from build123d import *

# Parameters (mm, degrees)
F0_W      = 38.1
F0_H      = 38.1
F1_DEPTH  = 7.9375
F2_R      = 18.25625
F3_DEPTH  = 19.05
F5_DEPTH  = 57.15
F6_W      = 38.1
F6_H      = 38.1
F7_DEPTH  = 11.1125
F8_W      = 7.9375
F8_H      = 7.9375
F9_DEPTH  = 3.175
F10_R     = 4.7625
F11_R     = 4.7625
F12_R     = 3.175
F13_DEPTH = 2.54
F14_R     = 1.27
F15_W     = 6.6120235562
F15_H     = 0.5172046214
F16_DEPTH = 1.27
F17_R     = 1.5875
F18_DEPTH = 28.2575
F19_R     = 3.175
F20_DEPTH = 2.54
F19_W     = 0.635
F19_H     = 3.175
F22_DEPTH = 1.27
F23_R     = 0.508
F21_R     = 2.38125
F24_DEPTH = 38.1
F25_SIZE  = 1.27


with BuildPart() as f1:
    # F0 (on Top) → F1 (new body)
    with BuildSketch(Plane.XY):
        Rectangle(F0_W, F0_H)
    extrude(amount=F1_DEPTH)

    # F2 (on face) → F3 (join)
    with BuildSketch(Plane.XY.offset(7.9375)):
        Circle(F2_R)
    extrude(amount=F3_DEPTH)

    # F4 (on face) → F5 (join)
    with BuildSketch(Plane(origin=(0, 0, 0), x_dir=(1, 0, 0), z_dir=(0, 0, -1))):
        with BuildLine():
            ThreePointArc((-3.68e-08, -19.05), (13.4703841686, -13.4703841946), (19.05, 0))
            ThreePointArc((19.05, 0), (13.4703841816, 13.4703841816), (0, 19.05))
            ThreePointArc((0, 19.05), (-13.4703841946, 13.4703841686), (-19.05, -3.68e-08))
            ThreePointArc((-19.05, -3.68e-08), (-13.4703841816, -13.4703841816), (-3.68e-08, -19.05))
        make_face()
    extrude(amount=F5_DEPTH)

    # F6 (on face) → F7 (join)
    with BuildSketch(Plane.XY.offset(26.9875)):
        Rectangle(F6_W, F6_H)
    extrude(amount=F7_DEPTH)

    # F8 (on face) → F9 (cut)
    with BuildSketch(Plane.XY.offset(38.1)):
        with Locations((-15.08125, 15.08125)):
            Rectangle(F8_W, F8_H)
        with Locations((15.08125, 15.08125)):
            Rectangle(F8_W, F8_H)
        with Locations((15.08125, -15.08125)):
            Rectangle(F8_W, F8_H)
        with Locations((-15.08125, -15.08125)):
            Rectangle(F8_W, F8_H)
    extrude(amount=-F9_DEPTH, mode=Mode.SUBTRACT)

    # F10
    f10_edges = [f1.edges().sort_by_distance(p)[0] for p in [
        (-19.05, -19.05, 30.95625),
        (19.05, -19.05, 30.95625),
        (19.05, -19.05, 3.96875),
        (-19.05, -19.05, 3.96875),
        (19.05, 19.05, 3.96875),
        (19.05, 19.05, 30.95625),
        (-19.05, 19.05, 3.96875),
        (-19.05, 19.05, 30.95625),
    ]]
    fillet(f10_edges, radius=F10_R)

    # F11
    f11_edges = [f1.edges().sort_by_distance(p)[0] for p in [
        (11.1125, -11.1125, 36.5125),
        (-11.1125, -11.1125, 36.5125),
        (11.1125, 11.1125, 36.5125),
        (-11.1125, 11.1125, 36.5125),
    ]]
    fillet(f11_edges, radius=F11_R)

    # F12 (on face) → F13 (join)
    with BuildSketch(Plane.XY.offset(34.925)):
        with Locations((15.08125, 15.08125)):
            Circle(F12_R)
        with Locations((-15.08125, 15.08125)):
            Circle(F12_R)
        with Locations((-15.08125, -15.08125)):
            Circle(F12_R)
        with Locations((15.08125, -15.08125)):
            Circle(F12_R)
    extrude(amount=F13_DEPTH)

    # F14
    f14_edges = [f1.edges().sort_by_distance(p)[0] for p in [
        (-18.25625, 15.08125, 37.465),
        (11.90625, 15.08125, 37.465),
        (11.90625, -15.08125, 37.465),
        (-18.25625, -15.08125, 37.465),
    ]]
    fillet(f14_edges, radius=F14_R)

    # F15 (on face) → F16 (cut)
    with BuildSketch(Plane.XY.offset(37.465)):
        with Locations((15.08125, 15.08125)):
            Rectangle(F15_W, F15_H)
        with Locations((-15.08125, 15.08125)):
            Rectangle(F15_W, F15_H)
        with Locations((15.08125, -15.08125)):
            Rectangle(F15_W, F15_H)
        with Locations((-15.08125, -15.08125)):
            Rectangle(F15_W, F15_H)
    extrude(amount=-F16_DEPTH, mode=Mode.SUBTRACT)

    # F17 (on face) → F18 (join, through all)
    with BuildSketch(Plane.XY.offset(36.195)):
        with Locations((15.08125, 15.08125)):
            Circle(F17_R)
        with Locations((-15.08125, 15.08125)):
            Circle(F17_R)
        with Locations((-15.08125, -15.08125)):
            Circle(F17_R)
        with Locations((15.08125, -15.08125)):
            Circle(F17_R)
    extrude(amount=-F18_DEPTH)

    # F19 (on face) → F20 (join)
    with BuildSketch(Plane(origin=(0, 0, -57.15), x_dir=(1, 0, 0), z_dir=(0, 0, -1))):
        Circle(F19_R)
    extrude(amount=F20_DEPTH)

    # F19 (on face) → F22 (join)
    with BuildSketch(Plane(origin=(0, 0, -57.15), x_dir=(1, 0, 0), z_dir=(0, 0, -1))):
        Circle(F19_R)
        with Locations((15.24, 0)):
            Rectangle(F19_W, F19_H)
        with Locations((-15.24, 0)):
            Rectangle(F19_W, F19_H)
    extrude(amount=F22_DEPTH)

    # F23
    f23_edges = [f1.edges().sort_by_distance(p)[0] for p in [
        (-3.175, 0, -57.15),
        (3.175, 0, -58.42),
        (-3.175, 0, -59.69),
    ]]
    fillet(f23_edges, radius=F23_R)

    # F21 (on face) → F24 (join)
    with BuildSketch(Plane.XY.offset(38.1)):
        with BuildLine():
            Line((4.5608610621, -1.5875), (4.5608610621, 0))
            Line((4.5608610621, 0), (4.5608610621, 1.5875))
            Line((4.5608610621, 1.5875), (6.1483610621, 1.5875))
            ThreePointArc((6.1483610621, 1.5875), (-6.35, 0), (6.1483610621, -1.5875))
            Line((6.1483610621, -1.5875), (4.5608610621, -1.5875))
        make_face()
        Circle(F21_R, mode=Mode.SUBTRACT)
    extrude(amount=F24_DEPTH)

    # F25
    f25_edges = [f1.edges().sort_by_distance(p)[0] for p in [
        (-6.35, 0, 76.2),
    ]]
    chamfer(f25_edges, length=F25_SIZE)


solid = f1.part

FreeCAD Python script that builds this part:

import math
import FreeCAD as App
import Part
import Sketcher
from FreeCAD import Vector
Q = App.Units.Quantity


def edges_at(feature, points):
    """Names of the edges that pass closest to the given points."""
    edges = feature.Shape.Edges
    near = lambda p: min(range(len(edges)), key=lambda i: edges[i].distToShape(Part.Vertex(*p))[0])
    return sorted({f"Edge{near(p) + 1}" for p in points})

doc = App.newDocument("Part")
body = doc.addObject("PartDesign::Body", "Body")

sketch1 = body.newObject("Sketcher::SketchObject", "Sketch")
sketch1.AttachmentSupport = (doc.getObject("XY_Plane"), [""])
sketch1.MapMode = "FlatFace"
sketch1.addGeometry([
    Part.LineSegment(Vector(-19, 19, 0), Vector(-19, -19, 0)),
    Part.LineSegment(Vector(-19, -19, 0), Vector(19, -19, 0)),
    Part.LineSegment(Vector(19, -19, 0), Vector(19, 19, 0)),
    Part.LineSegment(Vector(19, 19, 0), Vector(-19, 19, 0)),
], False)
sketch1.addConstraint([
    Sketcher.Constraint("Coincident", 0, 2, 1, 1),
    Sketcher.Constraint("Coincident", 1, 2, 2, 1),
    Sketcher.Constraint("Coincident", 2, 2, 3, 1),
    Sketcher.Constraint("Coincident", 3, 2, 0, 1),
    Sketcher.Constraint("Vertical", 0),
    Sketcher.Constraint("Horizontal", 1),
    Sketcher.Constraint("Vertical", 2),
    Sketcher.Constraint("Horizontal", 3),
    Sketcher.Constraint("Symmetric", 0, 2, 2, 2, -1, 1),
    Sketcher.Constraint("Equal", 3, 0),
    Sketcher.Constraint("DistanceX", 1, 1, 1, 2, Q("1.5 in")),
])
pad1 = body.newObject("PartDesign::Pad", "Pad")
pad1.Profile = sketch1
pad1.Length = Q("0.3125 in")

sketch2 = body.newObject("Sketcher::SketchObject", "Sketch001")
sketch2.AttachmentSupport = (doc.getObject("XY_Plane"), [""])
sketch2.MapMode = "FlatFace"
sketch2.AttachmentOffset = App.Placement(Vector(0, 0, 0.3125 * 25.4), App.Rotation())
sketch2.addGeometry(Part.Circle(Vector(0, 0, 0), Vector(0, 0, 1), 18), False)
sketch2.addConstraint([
    Sketcher.Constraint("Coincident", 0, 3, -1, 1),
    Sketcher.Constraint("Diameter", 0, Q("1.4375 in")),
])
pad2 = body.newObject("PartDesign::Pad", "Pad001")
pad2.Profile = sketch2
pad2.Length = Q("0.75 in")

sketch3 = body.newObject("Sketcher::SketchObject", "Sketch002")
sketch3.AttachmentSupport = (doc.getObject("XY_Plane"), [""])
sketch3.MapMode = "FlatFace"
sketch3.addGeometry([
    Part.ArcOfCircle(Part.Circle(Vector(0, 0, 0), Vector(0, 0, 1), 19), math.radians(0), math.radians(90)),
    Part.ArcOfCircle(Part.Circle(Vector(0, 0, 0), Vector(0, 0, 1), 19), math.radians(-90), math.radians(0)),
    Part.ArcOfCircle(Part.Circle(Vector(0, 0, 0), Vector(0, 0, 1), 19), math.radians(180), math.radians(270)),
    Part.ArcOfCircle(Part.Circle(Vector(0, 0, 0), Vector(0, 0, 1), 19), math.radians(90), math.radians(180)),
], False)
sketch3.addConstraint([
    Sketcher.Constraint("Tangent", 0, 1, 1, 2),
    Sketcher.Constraint("Tangent", 1, 1, 2, 2),
    Sketcher.Constraint("Tangent", 2, 1, 3, 2),
    Sketcher.Constraint("Tangent", 3, 1, 0, 2),
    Sketcher.Constraint("Coincident", 0, 3, -1, 1),
    Sketcher.Constraint("Equal", 0, 1),
    Sketcher.Constraint("PointOnObject", 0, 1, -1),
    Sketcher.Constraint("PointOnObject", 1, 1, -2),
    Sketcher.Constraint("PointOnObject", 2, 1, -1),
    Sketcher.Constraint("PointOnObject", 3, 1, -2),
    Sketcher.Constraint("Radius", 0, Q("0.75 in")),
])
pad3 = body.newObject("PartDesign::Pad", "Pad002")
pad3.Profile = sketch3
pad3.Length = Q("2.25 in")
pad3.Reversed = True

sketch4 = body.newObject("Sketcher::SketchObject", "Sketch003")
sketch4.AttachmentSupport = (doc.getObject("XY_Plane"), [""])
sketch4.MapMode = "FlatFace"
sketch4.AttachmentOffset = App.Placement(Vector(0, 0, 1.0625 * 25.4), App.Rotation())
sketch4.addGeometry([
    Part.LineSegment(Vector(-19, 19, 0), Vector(-19, -19, 0)),
    Part.LineSegment(Vector(-19, -19, 0), Vector(19, -19, 0)),
    Part.LineSegment(Vector(19, -19, 0), Vector(19, 19, 0)),
    Part.LineSegment(Vector(19, 19, 0), Vector(-19, 19, 0)),
], False)
sketch4.addConstraint([
    Sketcher.Constraint("Coincident", 0, 2, 1, 1),
    Sketcher.Constraint("Coincident", 1, 2, 2, 1),
    Sketcher.Constraint("Coincident", 2, 2, 3, 1),
    Sketcher.Constraint("Coincident", 3, 2, 0, 1),
    Sketcher.Constraint("Vertical", 0),
    Sketcher.Constraint("Horizontal", 1),
    Sketcher.Constraint("Vertical", 2),
    Sketcher.Constraint("Horizontal", 3),
    Sketcher.Constraint("Symmetric", 0, 2, 2, 2, -1, 1),
    Sketcher.Constraint("Equal", 3, 0),
    Sketcher.Constraint("DistanceX", 1, 1, 1, 2, Q("1.5 in")),
])
pad4 = body.newObject("PartDesign::Pad", "Pad003")
pad4.Profile = sketch4
pad4.Length = Q("0.4375 in")

sketch5 = body.newObject("Sketcher::SketchObject", "Sketch004")
sketch5.AttachmentSupport = (doc.getObject("XY_Plane"), [""])
sketch5.MapMode = "FlatFace"
sketch5.AttachmentOffset = App.Placement(Vector(0, 0, 1.5 * 25.4), App.Rotation())
sketch5.addGeometry([
    Part.LineSegment(Vector(-19, 19, 0), Vector(-19, 11, 0)),
    Part.LineSegment(Vector(-19, 11, 0), Vector(-11, 11, 0)),
    Part.LineSegment(Vector(-11, 11, 0), Vector(-11, 19, 0)),
    Part.LineSegment(Vector(-11, 19, 0), Vector(-19, 19, 0)),
    Part.LineSegment(Vector(11, 19, 0), Vector(11, 11, 0)),
    Part.LineSegment(Vector(11, 11, 0), Vector(19, 11, 0)),
    Part.LineSegment(Vector(19, 11, 0), Vector(19, 19, 0)),
    Part.LineSegment(Vector(19, 19, 0), Vector(11, 19, 0)),
    Part.LineSegment(Vector(11, -11, 0), Vector(11, -19, 0)),
    Part.LineSegment(Vector(11, -19, 0), Vector(19, -19, 0)),
    Part.LineSegment(Vector(19, -19, 0), Vector(19, -11, 0)),
    Part.LineSegment(Vector(19, -11, 0), Vector(11, -11, 0)),
    Part.LineSegment(Vector(-19, -11, 0), Vector(-19, -19, 0)),
    Part.LineSegment(Vector(-19, -19, 0), Vector(-11, -19, 0)),
    Part.LineSegment(Vector(-11, -19, 0), Vector(-11, -11, 0)),
    Part.LineSegment(Vector(-11, -11, 0), Vector(-19, -11, 0)),
], False)
sketch5.addConstraint([
    Sketcher.Constraint("Coincident", 0, 2, 1, 1),
    Sketcher.Constraint("Coincident", 1, 2, 2, 1),
    Sketcher.Constraint("Coincident", 2, 2, 3, 1),
    Sketcher.Constraint("Coincident", 3, 2, 0, 1),
    Sketcher.Constraint("Coincident", 4, 2, 5, 1),
    Sketcher.Constraint("Coincident", 5, 2, 6, 1),
    Sketcher.Constraint("Coincident", 6, 2, 7, 1),
    Sketcher.Constraint("Coincident", 7, 2, 4, 1),
    Sketcher.Constraint("Coincident", 8, 2, 9, 1),
    Sketcher.Constraint("Coincident", 9, 2, 10, 1),
    Sketcher.Constraint("Coincident", 10, 2, 11, 1),
    Sketcher.Constraint("Coincident", 11, 2, 8, 1),
    Sketcher.Constraint("Coincident", 12, 2, 13, 1),
    Sketcher.Constraint("Coincident", 13, 2, 14, 1),
    Sketcher.Constraint("Coincident", 14, 2, 15, 1),
    Sketcher.Constraint("Coincident", 15, 2, 12, 1),
    Sketcher.Constraint("Vertical", 0),
    Sketcher.Constraint("Horizontal", 1),
    Sketcher.Constraint("Vertical", 2),
    Sketcher.Constraint("Horizontal", 3),
    Sketcher.Constraint("Vertical", 4),
    Sketcher.Constraint("Horizontal", 5),
    Sketcher.Constraint("Vertical", 6),
    Sketcher.Constraint("Horizontal", 7),
    Sketcher.Constraint("Vertical", 8),
    Sketcher.Constraint("Horizontal", 9),
    Sketcher.Constraint("Vertical", 10),
    Sketcher.Constraint("Horizontal", 11),
    Sketcher.Constraint("Vertical", 12),
    Sketcher.Constraint("Horizontal", 13),
    Sketcher.Constraint("Vertical", 14),
    Sketcher.Constraint("Horizontal", 15),
    Sketcher.Constraint("Symmetric", 2, 2, 8, 2, -1, 1),
    Sketcher.Constraint("Symmetric", 0, 2, 10, 2, -1, 1),
    Sketcher.Constraint("Symmetric", 6, 2, 12, 2, -1, 1),
    Sketcher.Constraint("Symmetric", 4, 2, 14, 2, -1, 1),
    Sketcher.Constraint("Symmetric", 1, 2, 4, 2, -2),
    Sketcher.Constraint("Symmetric", 3, 2, 6, 2, -2),
    Sketcher.Constraint("Equal", 15, 0),
    Sketcher.Constraint("DistanceX", 0, 2, 5, 2, Q("1.5 in")),
    Sketcher.Constraint("DistanceY", 8, 2, 7, 2, Q("1.5 in")),
    Sketcher.Constraint("DistanceX", 1, 1, 1, 2, Q("0.3125 in")),
])
pocket1 = body.newObject("PartDesign::Pocket", "Pocket")
pocket1.Profile = sketch5
pocket1.Length = Q("0.125 in")
doc.recompute()

fillet = body.newObject("PartDesign::Fillet", "Fillet")
fillet.Base = (pocket1, edges_at(pocket1, [
    (-19.05, -19.05, 30.956),
    (19.05, -19.05, 30.956),
    (19.05, -19.05, 3.969),
    (-19.05, -19.05, 3.969),
    (19.05, 19.05, 3.969),
    (19.05, 19.05, 30.956),
    (-19.05, 19.05, 3.969),
    (-19.05, 19.05, 30.956),
]))
fillet.Radius = Q("0.1875 in")
doc.recompute()

fillet2 = body.newObject("PartDesign::Fillet", "Fillet001")
fillet2.Base = (fillet, edges_at(fillet, [
    (11.113, -11.113, 36.513),
    (-11.113, -11.113, 36.513),
    (11.113, 11.113, 36.513),
    (-11.113, 11.113, 36.513),
]))
fillet2.Radius = Q("0.1875 in")

sketch6 = body.newObject("Sketcher::SketchObject", "Sketch005")
sketch6.AttachmentSupport = (doc.getObject("XY_Plane"), [""])
sketch6.MapMode = "FlatFace"
sketch6.AttachmentOffset = App.Placement(Vector(0, 0, 1.375 * 25.4), App.Rotation())
sketch6.addGeometry([
    Part.Circle(Vector(15.1, 15.1, 0), Vector(0, 0, 1), 3.2),
    Part.Circle(Vector(-15.1, 15.1, 0), Vector(0, 0, 1), 3.2),
    Part.Circle(Vector(-15.1, -15.1, 0), Vector(0, 0, 1), 3.2),
    Part.Circle(Vector(15.1, -15.1, 0), Vector(0, 0, 1), 3.2),
], False)
sketch6.addConstraint([
    Sketcher.Constraint("Equal", 0, 1),
    Sketcher.Constraint("Equal", 1, 2),
    Sketcher.Constraint("Equal", 2, 3),
    Sketcher.Constraint("Symmetric", 0, 3, 2, 3, -1, 1),
    Sketcher.Constraint("Symmetric", 1, 3, 3, 3, -1, 1),
    Sketcher.Constraint("Symmetric", 0, 3, 1, 3, -2),
    Sketcher.Constraint("Diameter", 0, Q("0.25 in")),
    Sketcher.Constraint("DistanceX", -1, 1, 0, 3, Q("0.59375 in")),
    Sketcher.Constraint("DistanceY", -1, 1, 0, 3, Q("0.59375 in")),
])
pad5 = body.newObject("PartDesign::Pad", "Pad004")
pad5.Profile = sketch6
pad5.Length = Q("0.1 in")
doc.recompute()

fillet3 = body.newObject("PartDesign::Fillet", "Fillet002")
fillet3.Base = (pad5, edges_at(pad5, [
    (-18.256, 15.081, 37.465),
    (11.906, 15.081, 37.465),
    (11.906, -15.081, 37.465),
    (-18.256, -15.081, 37.465),
]))
fillet3.Radius = Q("0.05 in")

sketch7 = body.newObject("Sketcher::SketchObject", "Sketch006")
sketch7.AttachmentSupport = (doc.getObject("XY_Plane"), [""])
sketch7.MapMode = "FlatFace"
sketch7.AttachmentOffset = App.Placement(Vector(0, 0, 1.475 * 25.4), App.Rotation())
sketch7.addGeometry([
    Part.LineSegment(Vector(11.8, 15.3, 0), Vector(11.8, 14.8, 0)),
    Part.LineSegment(Vector(11.8, 14.8, 0), Vector(18.4, 14.8, 0)),
    Part.LineSegment(Vector(18.4, 14.8, 0), Vector(18.4, 15.3, 0)),
    Part.LineSegment(Vector(18.4, 15.3, 0), Vector(11.8, 15.3, 0)),
    Part.LineSegment(Vector(-18.4, 15.3, 0), Vector(-18.4, 14.8, 0)),
    Part.LineSegment(Vector(-18.4, 14.8, 0), Vector(-11.8, 14.8, 0)),
    Part.LineSegment(Vector(-11.8, 14.8, 0), Vector(-11.8, 15.3, 0)),
    Part.LineSegment(Vector(-11.8, 15.3, 0), Vector(-18.4, 15.3, 0)),
    Part.LineSegment(Vector(11.8, -14.8, 0), Vector(11.8, -15.3, 0)),
    Part.LineSegment(Vector(11.8, -15.3, 0), Vector(18.4, -15.3, 0)),
    Part.LineSegment(Vector(18.4, -15.3, 0), Vector(18.4, -14.8, 0)),
    Part.LineSegment(Vector(18.4, -14.8, 0), Vector(11.8, -14.8, 0)),
    Part.LineSegment(Vector(-18.4, -14.8, 0), Vector(-18.4, -15.3, 0)),
    Part.LineSegment(Vector(-18.4, -15.3, 0), Vector(-11.8, -15.3, 0)),
    Part.LineSegment(Vector(-11.8, -15.3, 0), Vector(-11.8, -14.8, 0)),
    Part.LineSegment(Vector(-11.8, -14.8, 0), Vector(-18.4, -14.8, 0)),
], False)
sketch7.addConstraint([
    Sketcher.Constraint("Coincident", 0, 2, 1, 1),
    Sketcher.Constraint("Coincident", 1, 2, 2, 1),
    Sketcher.Constraint("Coincident", 2, 2, 3, 1),
    Sketcher.Constraint("Coincident", 3, 2, 0, 1),
    Sketcher.Constraint("Coincident", 4, 2, 5, 1),
    Sketcher.Constraint("Coincident", 5, 2, 6, 1),
    Sketcher.Constraint("Coincident", 6, 2, 7, 1),
    Sketcher.Constraint("Coincident", 7, 2, 4, 1),
    Sketcher.Constraint("Coincident", 8, 2, 9, 1),
    Sketcher.Constraint("Coincident", 9, 2, 10, 1),
    Sketcher.Constraint("Coincident", 10, 2, 11, 1),
    Sketcher.Constraint("Coincident", 11, 2, 8, 1),
    Sketcher.Constraint("Coincident", 12, 2, 13, 1),
    Sketcher.Constraint("Coincident", 13, 2, 14, 1),
    Sketcher.Constraint("Coincident", 14, 2, 15, 1),
    Sketcher.Constraint("Coincident", 15, 2, 12, 1),
    Sketcher.Constraint("Vertical", 0),
    Sketcher.Constraint("Horizontal", 1),
    Sketcher.Constraint("Vertical", 2),
    Sketcher.Constraint("Horizontal", 3),
    Sketcher.Constraint("Vertical", 4),
    Sketcher.Constraint("Horizontal", 5),
    Sketcher.Constraint("Vertical", 6),
    Sketcher.Constraint("Horizontal", 7),
    Sketcher.Constraint("Vertical", 8),
    Sketcher.Constraint("Horizontal", 9),
    Sketcher.Constraint("Vertical", 10),
    Sketcher.Constraint("Horizontal", 11),
    Sketcher.Constraint("Vertical", 12),
    Sketcher.Constraint("Horizontal", 13),
    Sketcher.Constraint("Vertical", 14),
    Sketcher.Constraint("Horizontal", 15),
    Sketcher.Constraint("Symmetric", 6, 2, 8, 2, -1, 1),
    Sketcher.Constraint("Symmetric", 4, 2, 10, 2, -1, 1),
    Sketcher.Constraint("Symmetric", 2, 2, 12, 2, -1, 1),
    Sketcher.Constraint("Symmetric", 0, 2, 14, 2, -1, 1),
    Sketcher.Constraint("Symmetric", 1, 2, 4, 2, -2),
    Sketcher.Constraint("Symmetric", 3, 2, 6, 2, -2),
    Sketcher.Constraint("DistanceX", 4, 2, 0, 2, Q("1.1875 in")),
    Sketcher.Constraint("DistanceY", 8, 2, 0, 2, Q("1.1875 in")),
    Sketcher.Constraint("DistanceX", 1, 1, 1, 2, 6.612024),
    Sketcher.Constraint("DistanceY", 0, 2, 0, 1, 0.517205),
])
pocket2 = body.newObject("PartDesign::Pocket", "Pocket001")
pocket2.Profile = sketch7
pocket2.Length = Q("0.05 in")

sketch8 = body.newObject("Sketcher::SketchObject", "Sketch007")
sketch8.AttachmentSupport = (doc.getObject("XY_Plane"), [""])
sketch8.MapMode = "FlatFace"
sketch8.AttachmentOffset = App.Placement(Vector(0, 0, 1.425 * 25.4), App.Rotation())
sketch8.addGeometry([
    Part.Circle(Vector(15.1, 15.1, 0), Vector(0, 0, 1), 1.6),
    Part.Circle(Vector(-15.1, 15.1, 0), Vector(0, 0, 1), 1.6),
    Part.Circle(Vector(-15.1, -15.1, 0), Vector(0, 0, 1), 1.6),
    Part.Circle(Vector(15.1, -15.1, 0), Vector(0, 0, 1), 1.6),
], False)
sketch8.addConstraint([
    Sketcher.Constraint("Equal", 0, 1),
    Sketcher.Constraint("Equal", 1, 2),
    Sketcher.Constraint("Equal", 2, 3),
    Sketcher.Constraint("Symmetric", 0, 3, 2, 3, -1, 1),
    Sketcher.Constraint("Symmetric", 1, 3, 3, 3, -1, 1),
    Sketcher.Constraint("Symmetric", 0, 3, 1, 3, -2),
    Sketcher.Constraint("Diameter", 0, Q("0.125 in")),
    Sketcher.Constraint("DistanceX", -1, 1, 0, 3, Q("0.59375 in")),
    Sketcher.Constraint("DistanceY", -1, 1, 0, 3, Q("0.59375 in")),
])
pad6 = body.newObject("PartDesign::Pad", "Pad005")
pad6.Profile = sketch8
pad6.Length = Q("1.1125 in")
pad6.Reversed = True

sketch9 = body.newObject("Sketcher::SketchObject", "Sketch008")
sketch9.AttachmentSupport = (doc.getObject("XY_Plane"), [""])
sketch9.MapMode = "FlatFace"
sketch9.AttachmentOffset = App.Placement(Vector(0, 0, -2.25 * 25.4), App.Rotation())
sketch9.addGeometry(Part.Circle(Vector(0, 0, 0), Vector(0, 0, 1), 3.2), False)
sketch9.addConstraint([
    Sketcher.Constraint("Coincident", 0, 3, -1, 1),
    Sketcher.Constraint("Diameter", 0, Q("0.25 in")),
])
pad7 = body.newObject("PartDesign::Pad", "Pad006")
pad7.Profile = sketch9
pad7.Length = Q("0.1 in")
pad7.Reversed = True

sketch10 = body.newObject("Sketcher::SketchObject", "Sketch009")
sketch10.AttachmentSupport = (doc.getObject("XY_Plane"), [""])
sketch10.MapMode = "FlatFace"
sketch10.AttachmentOffset = App.Placement(Vector(0, 0, -2.25 * 25.4), App.Rotation())
sketch10.addGeometry([
    Part.Circle(Vector(0, 0, 0), Vector(0, 0, 1), 3.2),
    Part.LineSegment(Vector(14.9, -1.6, 0), Vector(14.9, 1.6, 0)),
    Part.LineSegment(Vector(14.9, 1.6, 0), Vector(15.6, 1.6, 0)),
    Part.LineSegment(Vector(15.6, 1.6, 0), Vector(15.6, -1.6, 0)),
    Part.LineSegment(Vector(15.6, -1.6, 0), Vector(14.9, -1.6, 0)),
    Part.LineSegment(Vector(-15.6, -1.6, 0), Vector(-15.6, 1.6, 0)),
    Part.LineSegment(Vector(-15.6, 1.6, 0), Vector(-14.9, 1.6, 0)),
    Part.LineSegment(Vector(-14.9, 1.6, 0), Vector(-14.9, -1.6, 0)),
    Part.LineSegment(Vector(-14.9, -1.6, 0), Vector(-15.6, -1.6, 0)),
], False)
sketch10.addConstraint([
    Sketcher.Constraint("Coincident", 1, 2, 2, 1),
    Sketcher.Constraint("Coincident", 2, 2, 3, 1),
    Sketcher.Constraint("Coincident", 3, 2, 4, 1),
    Sketcher.Constraint("Coincident", 4, 2, 1, 1),
    Sketcher.Constraint("Coincident", 5, 2, 6, 1),
    Sketcher.Constraint("Coincident", 6, 2, 7, 1),
    Sketcher.Constraint("Coincident", 7, 2, 8, 1),
    Sketcher.Constraint("Coincident", 8, 2, 5, 1),
    Sketcher.Constraint("Vertical", 1),
    Sketcher.Constraint("Horizontal", 2),
    Sketcher.Constraint("Vertical", 3),
    Sketcher.Constraint("Horizontal", 4),
    Sketcher.Constraint("Vertical", 5),
    Sketcher.Constraint("Horizontal", 6),
    Sketcher.Constraint("Vertical", 7),
    Sketcher.Constraint("Horizontal", 8),
    Sketcher.Constraint("Coincident", 0, 3, -1, 1),
    Sketcher.Constraint("Symmetric", 3, 2, 5, 2, -1, 1),
    Sketcher.Constraint("Symmetric", 1, 2, 7, 2, -1, 1),
    Sketcher.Constraint("Horizontal", 2, 2, 5, 2),
    Sketcher.Constraint("Diameter", 0, Q("0.25 in")),
    Sketcher.Constraint("DistanceX", 5, 2, 1, 2, Q("1.2 in")),
    Sketcher.Constraint("DistanceX", 2, 1, 2, 2, Q("0.025 in")),
    Sketcher.Constraint("DistanceY", 1, 1, 1, 2, Q("0.125 in")),
])
pad8 = body.newObject("PartDesign::Pad", "Pad007")
pad8.Profile = sketch10
pad8.Length = Q("0.05 in")
pad8.Reversed = True
doc.recompute()

fillet4 = body.newObject("PartDesign::Fillet", "Fillet003")
fillet4.Base = (pad8, edges_at(pad8, [(-3.175, 0, -57.15), (3.175, 0, -58.42), (-3.175, 0, -59.69)]))
fillet4.Radius = Q("0.02 in")

sketch11 = body.newObject("Sketcher::SketchObject", "Sketch010")
sketch11.AttachmentSupport = (doc.getObject("XY_Plane"), [""])
sketch11.MapMode = "FlatFace"
sketch11.AttachmentOffset = App.Placement(Vector(0, 0, 1.5 * 25.4), App.Rotation())
sketch11.addGeometry([
    Part.LineSegment(Vector(4.6, -1.6, 0), Vector(4.6, 1.6, 0)),
    Part.LineSegment(Vector(4.6, 1.6, 0), Vector(6.1, 1.6, 0)),
    Part.ArcOfCircle(Part.Circle(Vector(0, 0, 0), Vector(0, 0, 1), 6.3), math.radians(14), math.radians(346)),
    Part.LineSegment(Vector(6.1, -1.6, 0), Vector(4.6, -1.6, 0)),
    Part.Circle(Vector(0, 0, 0), Vector(0, 0, 1), 2.4),
], False)
sketch11.addConstraint([
    Sketcher.Constraint("Coincident", 0, 2, 1, 1),
    Sketcher.Constraint("Coincident", 1, 2, 2, 1),
    Sketcher.Constraint("Coincident", 2, 2, 3, 1),
    Sketcher.Constraint("Coincident", 3, 2, 0, 1),
    Sketcher.Constraint("Vertical", 0),
    Sketcher.Constraint("Horizontal", 1),
    Sketcher.Constraint("Horizontal", 3),
    Sketcher.Constraint("Coincident", 2, 3, -1, 1),
    Sketcher.Constraint("Coincident", 4, 3, -1, 1),
    Sketcher.Constraint("Vertical", 1, 2, 2, 2),
    Sketcher.Constraint("Radius", 2, Q("0.25 in")),
    Sketcher.Constraint("Diameter", 4, Q("0.1875 in")),
    Sketcher.Constraint("DistanceX", 1, 1, 1, 2, Q("0.0625 in")),
    Sketcher.Constraint("DistanceY", 0, 1, 0, 2, Q("0.125 in")),
])
pad9 = body.newObject("PartDesign::Pad", "Pad008")
pad9.Profile = sketch11
pad9.Length = Q("1.5 in")
doc.recompute()

chamfer = body.newObject("PartDesign::Chamfer", "Chamfer")
chamfer.Base = (pad9, edges_at(pad9, [(-6.35, 0, 76.2)]))
chamfer.Size = Q("0.05 in")

doc.recompute()
